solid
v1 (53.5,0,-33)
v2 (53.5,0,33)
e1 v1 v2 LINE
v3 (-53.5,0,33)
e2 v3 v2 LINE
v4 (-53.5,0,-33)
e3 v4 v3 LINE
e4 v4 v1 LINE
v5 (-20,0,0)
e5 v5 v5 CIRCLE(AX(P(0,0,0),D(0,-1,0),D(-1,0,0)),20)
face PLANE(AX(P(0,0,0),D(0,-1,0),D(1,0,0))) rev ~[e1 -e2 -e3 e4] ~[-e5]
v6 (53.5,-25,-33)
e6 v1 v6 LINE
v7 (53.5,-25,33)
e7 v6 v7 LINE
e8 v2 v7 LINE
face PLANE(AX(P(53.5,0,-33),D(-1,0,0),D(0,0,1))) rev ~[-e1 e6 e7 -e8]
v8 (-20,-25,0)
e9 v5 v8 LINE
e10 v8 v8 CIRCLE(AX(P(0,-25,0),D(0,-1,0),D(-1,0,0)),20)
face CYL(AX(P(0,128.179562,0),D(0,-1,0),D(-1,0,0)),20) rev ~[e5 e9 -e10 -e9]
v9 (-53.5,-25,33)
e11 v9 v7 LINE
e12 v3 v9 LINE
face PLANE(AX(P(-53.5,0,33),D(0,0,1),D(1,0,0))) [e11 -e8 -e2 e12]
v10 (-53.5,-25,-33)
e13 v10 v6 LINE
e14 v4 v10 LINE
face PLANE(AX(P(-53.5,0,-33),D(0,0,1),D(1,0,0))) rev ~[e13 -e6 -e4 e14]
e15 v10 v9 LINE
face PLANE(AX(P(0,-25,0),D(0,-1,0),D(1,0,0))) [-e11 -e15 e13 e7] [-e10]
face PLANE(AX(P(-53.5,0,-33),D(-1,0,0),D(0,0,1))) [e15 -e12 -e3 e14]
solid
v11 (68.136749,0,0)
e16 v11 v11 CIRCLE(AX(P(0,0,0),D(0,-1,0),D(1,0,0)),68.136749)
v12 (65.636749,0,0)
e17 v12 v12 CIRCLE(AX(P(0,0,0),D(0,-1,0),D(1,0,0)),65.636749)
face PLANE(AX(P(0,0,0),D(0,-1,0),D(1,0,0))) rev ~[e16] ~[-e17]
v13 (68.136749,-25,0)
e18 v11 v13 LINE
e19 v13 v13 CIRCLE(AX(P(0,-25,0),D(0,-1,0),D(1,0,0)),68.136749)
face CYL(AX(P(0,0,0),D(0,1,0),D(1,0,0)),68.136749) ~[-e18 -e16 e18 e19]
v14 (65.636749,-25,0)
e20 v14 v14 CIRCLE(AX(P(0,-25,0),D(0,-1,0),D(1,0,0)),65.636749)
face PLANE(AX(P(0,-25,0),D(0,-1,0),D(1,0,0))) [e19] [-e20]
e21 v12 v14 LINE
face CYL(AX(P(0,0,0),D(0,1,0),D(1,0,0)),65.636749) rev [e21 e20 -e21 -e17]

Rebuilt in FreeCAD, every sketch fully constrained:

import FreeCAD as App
import Part
import Sketcher
from FreeCAD import Vector


def faces_at(feature, points):
    """Names of the faces that lie closest to the given points."""
    faces = feature.Shape.Faces
    near = lambda p: min(range(len(faces)), key=lambda i: faces[i].distToShape(Part.Vertex(*p))[0])
    return sorted({f"Face{near(p) + 1}" for p in points})

doc = App.newDocument("Part")
params = doc.addObject("Spreadsheet::Sheet", "Params")
for row, (alias, value) in enumerate([
    ("pad1_length", "25 mm"),
    ("thickness_wall", "2.5 mm"),
    ("sketch2_width", "107 mm"),
    ("sketch2_height", "66 mm"),
    ("pad2_length", "25 mm"),
    ("sketch3_diameter", "40 mm"),
    ("hole_diameter", "40 mm"),
], start=1):
    params.set(f"A{row}", alias)
    params.set(f"B{row}", "=" + value)
    params.setAlias(f"B{row}", alias)

body = doc.addObject("PartDesign::Body", "Body")

# Sketch on XZ plane
sketch1 = doc.addObject("Sketcher::SketchObject", "Sketch")
body.addObject(sketch1)
sketch1.AttachmentSupport = (doc.XZ_Plane, [""])
sketch1.MapMode = "FlatFace"
sketch1.addGeometry(Part.Circle(Vector(0, 0, 0), Vector(0, 0, 1), 68), False)
sketch1.addConstraint([
    Sketcher.Constraint("Coincident", 0, 3, -1, 1),
    Sketcher.Constraint("Diameter", 0, 136.273498),
])
pad1 = doc.addObject("PartDesign::Pad", "Pad")
body.addObject(pad1)
pad1.Profile = sketch1
pad1.setExpression("Length", "Params.pad1_length")
doc.recompute()

thickness = doc.addObject("PartDesign::Thickness", "Thickness")
body.addObject(thickness)
thickness.Base = (pad1, faces_at(pad1, [(0, -25, 0), (0, 0, 0)]))
thickness.setExpression("Value", "Params.thickness_wall")
thickness.Reversed = True
thickness.Join = "Arc"
body2 = doc.addObject("PartDesign::Body", "Body001")

# Sketch on XZ plane
sketch2 = doc.addObject("Sketcher::SketchObject", "Sketch001")
body2.addObject(sketch2)
sketch2.AttachmentSupport = (doc.getObject("XZ_Plane001"), [""])
sketch2.MapMode = "FlatFace"
sketch2.addGeometry([
    Part.LineSegment(Vector(-54, 33, 0), Vector(-54, -33, 0)),
    Part.LineSegment(Vector(-54, -33, 0), Vector(54, -33, 0)),
    Part.LineSegment(Vector(54, -33, 0), Vector(54, 33, 0)),
    Part.LineSegment(Vector(54, 33, 0), Vector(-54, 33, 0)),
], False)
sketch2.addConstraint([
    Sketcher.Constraint("Coincident", 0, 2, 1, 1),
    Sketcher.Constraint("Coincident", 1, 2, 2, 1),
    Sketcher.Constraint("Coincident", 2, 2, 3, 1),
    Sketcher.Constraint("Coincident", 3, 2, 0, 1),
    Sketcher.Constraint("Vertical", 0),
    Sketcher.Constraint("Horizontal", 1),
    Sketcher.Constraint("Vertical", 2),
    Sketcher.Constraint("Horizontal", 3),
    Sketcher.Constraint("Symmetric", 0, 2, 2, 2, -1, 1),
    Sketcher.Constraint("DistanceX", 1, 1, 1, 2, 107.0),
    Sketcher.Constraint("DistanceY", 0, 2, 0, 1, 66.0),
])
sketch2.setExpression("Constraints[9]", "Params.sketch2_width")
sketch2.setExpression("Constraints[10]", "Params.sketch2_height")
pad2 = doc.addObject("PartDesign::Pad", "Pad001")
body2.addObject(pad2)
pad2.Profile = sketch2
pad2.setExpression("Length", "Params.pad2_length")

# Sketch on XZ plane
sketch3 = doc.addObject("Sketcher::SketchObject", "Sketch002")
body2.addObject(sketch3)
sketch3.AttachmentSupport = (doc.getObject("XZ_Plane001"), [""])
sketch3.MapMode = "FlatFace"
sketch3.addGeometry(Part.Circle(Vector(0, 0, 0), Vector(0, 0, 1), 20), False)
sketch3.addConstraint([
    Sketcher.Constraint("Coincident", 0, 3, -1, 1),
    Sketcher.Constraint("Diameter", 0, 40.0),
])
sketch3.setExpression("Constraints[1]", "Params.sketch3_diameter")
doc.recompute()
hole = doc.addObject("PartDesign::Hole", "Hole")
body2.addObject(hole)
hole.Profile = sketch3
hole.ThreadType = "None"
hole.setExpression("Diameter", "Params.hole_diameter")
hole.DepthType = "ThroughAll"
hole.Reversed = True

doc.recompute()
